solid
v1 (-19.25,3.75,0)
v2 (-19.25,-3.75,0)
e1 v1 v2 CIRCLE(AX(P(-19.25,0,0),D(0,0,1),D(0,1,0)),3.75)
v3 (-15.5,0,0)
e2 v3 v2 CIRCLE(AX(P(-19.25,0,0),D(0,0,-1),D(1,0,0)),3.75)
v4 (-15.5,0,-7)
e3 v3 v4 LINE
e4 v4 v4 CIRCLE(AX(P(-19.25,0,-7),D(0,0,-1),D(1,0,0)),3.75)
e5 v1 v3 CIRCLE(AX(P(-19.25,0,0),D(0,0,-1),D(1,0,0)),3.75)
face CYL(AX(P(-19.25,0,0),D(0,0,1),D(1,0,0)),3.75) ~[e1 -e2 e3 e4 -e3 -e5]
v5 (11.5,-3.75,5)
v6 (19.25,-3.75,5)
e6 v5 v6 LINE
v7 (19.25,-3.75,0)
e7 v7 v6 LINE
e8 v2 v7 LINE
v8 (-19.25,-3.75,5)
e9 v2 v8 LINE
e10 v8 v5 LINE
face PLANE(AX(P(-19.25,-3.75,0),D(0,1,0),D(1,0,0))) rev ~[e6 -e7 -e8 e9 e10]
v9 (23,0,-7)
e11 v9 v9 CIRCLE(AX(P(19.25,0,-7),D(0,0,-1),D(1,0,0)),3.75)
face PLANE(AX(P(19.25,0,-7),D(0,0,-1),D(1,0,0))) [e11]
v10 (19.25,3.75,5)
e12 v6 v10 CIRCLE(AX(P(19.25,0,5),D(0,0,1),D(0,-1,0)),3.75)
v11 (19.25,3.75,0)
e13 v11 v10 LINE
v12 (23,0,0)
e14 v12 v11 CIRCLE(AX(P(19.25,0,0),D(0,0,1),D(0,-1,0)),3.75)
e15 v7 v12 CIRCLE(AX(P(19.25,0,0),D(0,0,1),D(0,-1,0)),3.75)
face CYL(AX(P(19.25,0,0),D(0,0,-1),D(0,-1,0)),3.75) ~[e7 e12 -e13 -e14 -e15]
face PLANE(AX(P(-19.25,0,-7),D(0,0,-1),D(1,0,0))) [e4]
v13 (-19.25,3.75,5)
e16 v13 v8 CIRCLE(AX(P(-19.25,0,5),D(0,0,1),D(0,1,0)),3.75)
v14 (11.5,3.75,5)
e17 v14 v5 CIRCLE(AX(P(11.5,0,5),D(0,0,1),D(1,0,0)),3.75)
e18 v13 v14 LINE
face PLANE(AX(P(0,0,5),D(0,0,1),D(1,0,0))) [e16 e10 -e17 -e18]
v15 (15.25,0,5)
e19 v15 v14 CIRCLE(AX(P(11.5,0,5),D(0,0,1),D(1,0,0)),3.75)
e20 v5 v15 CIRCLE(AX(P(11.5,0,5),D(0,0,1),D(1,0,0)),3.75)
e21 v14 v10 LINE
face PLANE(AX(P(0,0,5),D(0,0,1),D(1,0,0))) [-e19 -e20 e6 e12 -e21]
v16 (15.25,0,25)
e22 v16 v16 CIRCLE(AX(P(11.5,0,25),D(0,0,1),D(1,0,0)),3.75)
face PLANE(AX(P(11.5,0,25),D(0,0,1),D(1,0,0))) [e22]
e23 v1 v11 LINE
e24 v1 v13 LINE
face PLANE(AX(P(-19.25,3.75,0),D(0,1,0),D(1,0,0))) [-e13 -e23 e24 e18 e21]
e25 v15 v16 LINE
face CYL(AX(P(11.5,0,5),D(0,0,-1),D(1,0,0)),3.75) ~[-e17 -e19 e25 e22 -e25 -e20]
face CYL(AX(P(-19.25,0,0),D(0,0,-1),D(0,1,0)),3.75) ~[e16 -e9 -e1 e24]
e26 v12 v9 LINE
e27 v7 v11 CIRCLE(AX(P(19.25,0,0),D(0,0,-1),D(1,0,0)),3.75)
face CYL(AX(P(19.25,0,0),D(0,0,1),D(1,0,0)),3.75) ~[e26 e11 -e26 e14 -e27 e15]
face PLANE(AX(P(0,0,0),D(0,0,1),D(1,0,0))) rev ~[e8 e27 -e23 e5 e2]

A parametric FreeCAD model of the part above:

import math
import FreeCAD as App
import Part
import Sketcher
Q = App.Units.Quantity

doc = App.newDocument("Part")
body = doc.addObject("PartDesign::Body", "Body")

sketch1 = doc.addObject("Sketcher::SketchObject", "Sketch")
body.addObject(sketch1)
sketch1.AttachmentSupport = (doc.XY_Plane, [""])
sketch1.MapMode = "FlatFace"
sketch1.addGeometry([
    Part.ArcOfCircle(Part.Circle(App.Vector(-19.25, 0, 0), App.Vector(0, 0, 1), 3.75), math.radians(90), math.radians(270)),
    Part.LineSegment(App.Vector(-19.25, -3.75, 0), App.Vector(19.25, -3.75, 0)),
    Part.ArcOfCircle(Part.Circle(App.Vector(19.25, 0, 0), App.Vector(0, 0, 1), 3.75), math.radians(-90), math.radians(90)),
    Part.LineSegment(App.Vector(19.25, 3.75, 0), App.Vector(-19.25, 3.75, 0)),
], False)
sketch1.addConstraint([
    Sketcher.Constraint("Tangent", 0, 2, 1, 1),
    Sketcher.Constraint("Tangent", 1, 2, 2, 1),
    Sketcher.Constraint("Tangent", 2, 2, 3, 1),
    Sketcher.Constraint("Tangent", 3, 2, 0, 1),
    Sketcher.Constraint("Horizontal", 1),
    Sketcher.Constraint("Horizontal", 3),
    Sketcher.Constraint("Symmetric", 0, 3, 2, 3, -1, 1),
    Sketcher.Constraint("Radius", 0, Q("3.75 mm")),
    Sketcher.Constraint("DistanceX", 1, 1, 1, 2, Q("38.5 mm")),
])
pad1 = doc.addObject("PartDesign::Pad", "Pad")
body.addObject(pad1)
pad1.Profile = sketch1
pad1.Length = 5

sketch2 = doc.addObject("Sketcher::SketchObject", "Sketch001")
body.addObject(sketch2)
sketch2.AttachmentSupport = (doc.XY_Plane, [""])
sketch2.MapMode = "FlatFace"
sketch2.AttachmentOffset = App.Placement(App.Vector(0, 0, 5), App.Rotation())
sketch2.addGeometry(Part.Circle(App.Vector(11.5, 0, 0), App.Vector(0, 0, 1), 3.75), False)
sketch2.addConstraint([
    Sketcher.Constraint("PointOnObject", 0, 3, -1),
    Sketcher.Constraint("Diameter", 0, Q("7.5 mm")),
    Sketcher.Constraint("DistanceX", -1, 1, 0, 3, Q("11.5 mm")),
])
pad2 = doc.addObject("PartDesign::Pad", "Pad001")
body.addObject(pad2)
pad2.Profile = sketch2
pad2.Length = 20

sketch3 = doc.addObject("Sketcher::SketchObject", "Sketch002")
body.addObject(sketch3)
sketch3.AttachmentSupport = (doc.XY_Plane, [""])
sketch3.MapMode = "FlatFace"
sketch3.addGeometry([
    Part.Circle(App.Vector(-19.25, 0, 0), App.Vector(0, 0, 1), 3.75),
    Part.Circle(App.Vector(19.25, 0, 0), App.Vector(0, 0, 1), 3.75),
], False)
sketch3.addConstraint([
    Sketcher.Constraint("Equal", 0, 1),
    Sketcher.Constraint("Symmetric", 0, 3, 1, 3, -1, 1),
    Sketcher.Constraint("PointOnObject", 0, 3, -1),
    Sketcher.Constraint("Diameter", 0, Q("7.5 mm")),
    Sketcher.Constraint("DistanceX", 0, 3, 1, 3, Q("38.5 mm")),
])
pad3 = doc.addObject("PartDesign::Pad", "Pad002")
body.addObject(pad3)
pad3.Profile = sketch3
pad3.Length = 7
pad3.Reversed = True

doc.recompute()
